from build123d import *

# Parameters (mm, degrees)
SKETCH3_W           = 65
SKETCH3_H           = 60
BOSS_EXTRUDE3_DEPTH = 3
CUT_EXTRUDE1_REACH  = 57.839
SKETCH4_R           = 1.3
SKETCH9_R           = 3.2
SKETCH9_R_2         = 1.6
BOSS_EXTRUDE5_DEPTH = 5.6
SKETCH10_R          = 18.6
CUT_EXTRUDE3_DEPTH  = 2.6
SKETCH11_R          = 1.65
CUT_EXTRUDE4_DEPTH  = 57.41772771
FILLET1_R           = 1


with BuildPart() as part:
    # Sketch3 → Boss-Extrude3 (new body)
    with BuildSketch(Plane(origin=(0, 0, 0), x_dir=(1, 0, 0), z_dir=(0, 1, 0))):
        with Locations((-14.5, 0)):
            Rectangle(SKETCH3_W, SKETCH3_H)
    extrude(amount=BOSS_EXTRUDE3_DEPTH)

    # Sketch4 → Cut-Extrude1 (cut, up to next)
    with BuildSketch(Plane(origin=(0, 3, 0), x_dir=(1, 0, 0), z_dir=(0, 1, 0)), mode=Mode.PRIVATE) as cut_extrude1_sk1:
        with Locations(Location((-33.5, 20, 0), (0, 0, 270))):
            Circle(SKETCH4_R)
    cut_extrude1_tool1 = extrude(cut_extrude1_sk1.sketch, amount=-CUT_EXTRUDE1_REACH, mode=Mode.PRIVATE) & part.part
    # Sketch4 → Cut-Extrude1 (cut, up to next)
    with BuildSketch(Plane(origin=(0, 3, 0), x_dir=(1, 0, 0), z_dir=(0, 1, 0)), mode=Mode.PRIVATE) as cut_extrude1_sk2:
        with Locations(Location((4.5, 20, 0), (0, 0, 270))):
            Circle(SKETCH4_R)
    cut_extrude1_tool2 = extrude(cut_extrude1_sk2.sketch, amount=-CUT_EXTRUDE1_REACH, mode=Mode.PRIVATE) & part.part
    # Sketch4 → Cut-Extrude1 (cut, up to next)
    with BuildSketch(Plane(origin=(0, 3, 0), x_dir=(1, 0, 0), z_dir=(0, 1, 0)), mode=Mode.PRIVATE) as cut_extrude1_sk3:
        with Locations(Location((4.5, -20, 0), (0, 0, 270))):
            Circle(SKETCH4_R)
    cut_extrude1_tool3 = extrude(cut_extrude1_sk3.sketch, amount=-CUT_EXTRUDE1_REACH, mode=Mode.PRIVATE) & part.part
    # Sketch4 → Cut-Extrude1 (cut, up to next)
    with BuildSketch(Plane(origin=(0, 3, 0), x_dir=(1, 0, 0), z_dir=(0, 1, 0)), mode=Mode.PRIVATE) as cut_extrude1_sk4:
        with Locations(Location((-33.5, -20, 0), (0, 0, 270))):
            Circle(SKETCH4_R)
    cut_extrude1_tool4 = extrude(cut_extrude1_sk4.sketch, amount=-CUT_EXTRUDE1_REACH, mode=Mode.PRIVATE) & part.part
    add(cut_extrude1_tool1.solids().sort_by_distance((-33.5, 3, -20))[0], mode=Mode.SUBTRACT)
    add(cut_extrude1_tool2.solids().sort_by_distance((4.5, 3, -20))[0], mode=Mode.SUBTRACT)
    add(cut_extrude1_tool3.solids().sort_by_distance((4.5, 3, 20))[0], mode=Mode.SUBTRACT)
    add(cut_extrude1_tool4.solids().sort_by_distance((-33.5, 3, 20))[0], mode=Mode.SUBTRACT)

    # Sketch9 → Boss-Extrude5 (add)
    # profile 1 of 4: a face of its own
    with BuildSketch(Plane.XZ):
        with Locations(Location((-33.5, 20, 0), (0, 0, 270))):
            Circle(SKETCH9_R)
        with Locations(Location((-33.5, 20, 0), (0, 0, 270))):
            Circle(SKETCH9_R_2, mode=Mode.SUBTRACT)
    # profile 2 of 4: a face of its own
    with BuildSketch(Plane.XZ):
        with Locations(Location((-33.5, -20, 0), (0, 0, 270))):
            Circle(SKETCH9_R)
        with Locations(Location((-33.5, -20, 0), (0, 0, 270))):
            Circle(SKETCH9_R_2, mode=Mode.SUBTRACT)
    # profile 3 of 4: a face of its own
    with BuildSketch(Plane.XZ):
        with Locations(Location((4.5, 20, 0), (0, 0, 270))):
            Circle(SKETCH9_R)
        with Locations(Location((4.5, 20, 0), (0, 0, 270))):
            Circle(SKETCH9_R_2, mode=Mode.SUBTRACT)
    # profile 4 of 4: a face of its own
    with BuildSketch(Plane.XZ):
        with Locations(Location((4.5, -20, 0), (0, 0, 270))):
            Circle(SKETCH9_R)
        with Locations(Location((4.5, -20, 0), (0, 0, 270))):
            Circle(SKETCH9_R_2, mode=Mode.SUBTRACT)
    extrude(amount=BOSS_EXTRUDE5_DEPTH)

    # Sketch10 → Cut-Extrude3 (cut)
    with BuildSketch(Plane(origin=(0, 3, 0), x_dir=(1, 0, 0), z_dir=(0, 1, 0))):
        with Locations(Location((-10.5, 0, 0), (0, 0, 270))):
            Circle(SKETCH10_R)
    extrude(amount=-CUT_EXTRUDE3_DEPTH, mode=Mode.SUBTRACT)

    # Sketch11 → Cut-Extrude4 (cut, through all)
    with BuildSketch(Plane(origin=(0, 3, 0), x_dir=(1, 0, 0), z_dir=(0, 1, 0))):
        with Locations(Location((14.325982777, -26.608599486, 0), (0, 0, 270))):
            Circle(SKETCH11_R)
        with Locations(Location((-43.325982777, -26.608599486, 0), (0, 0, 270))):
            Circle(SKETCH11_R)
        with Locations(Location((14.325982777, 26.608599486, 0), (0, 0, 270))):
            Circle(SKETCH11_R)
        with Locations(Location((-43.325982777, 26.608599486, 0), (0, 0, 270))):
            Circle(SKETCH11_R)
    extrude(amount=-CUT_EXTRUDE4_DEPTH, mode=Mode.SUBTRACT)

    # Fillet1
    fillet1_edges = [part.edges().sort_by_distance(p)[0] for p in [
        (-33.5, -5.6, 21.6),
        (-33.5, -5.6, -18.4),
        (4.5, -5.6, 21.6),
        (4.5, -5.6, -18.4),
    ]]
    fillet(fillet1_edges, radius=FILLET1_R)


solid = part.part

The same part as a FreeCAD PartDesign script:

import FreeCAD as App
import Part
import Sketcher
from FreeCAD import Vector
Q = App.Units.Quantity


def edges_at(feature, points):
    """Names of the edges that pass closest to the given points."""
    edges = feature.Shape.Edges
    near = lambda p: min(range(len(edges)), key=lambda i: edges[i].distToShape(Part.Vertex(*p))[0])
    return sorted({f"Edge{near(p) + 1}" for p in points})

doc = App.newDocument("Part")
body = doc.addObject("PartDesign::Body", "Body")

sketch1 = body.newObject("Sketcher::SketchObject", "Sketch")
sketch1.AttachmentSupport = (doc.getObject("XZ_Plane"), [""])
sketch1.MapMode = "FlatFace"
sketch1.addGeometry(Part.LineSegment(Vector(-47, -30, 0), Vector(-47, 30, 0)), False)
sketch1.addGeometry(Part.LineSegment(Vector(-47, 30, 0), Vector(18, 30, 0)), False)
sketch1.addGeometry(Part.LineSegment(Vector(18, 30, 0), Vector(18, -30, 0)), False)
sketch1.addGeometry(Part.LineSegment(Vector(18, -30, 0), Vector(-47, -30, 0)), False)
sketch1.addConstraint(Sketcher.Constraint("Coincident", 0, 2, 1, 1))
sketch1.addConstraint(Sketcher.Constraint("Coincident", 1, 2, 2, 1))
sketch1.addConstraint(Sketcher.Constraint("Coincident", 2, 2, 3, 1))
sketch1.addConstraint(Sketcher.Constraint("Coincident", 3, 2, 0, 1))
sketch1.addConstraint(Sketcher.Constraint("Vertical", 0))
sketch1.addConstraint(Sketcher.Constraint("Horizontal", 1))
sketch1.addConstraint(Sketcher.Constraint("Vertical", 2))
sketch1.addConstraint(Sketcher.Constraint("Horizontal", 3))
sketch1.addConstraint(Sketcher.Constraint("DistanceX", 1, 1, 1, 2, Q("65 mm")))
sketch1.addConstraint(Sketcher.Constraint("DistanceY", 0, 1, 0, 2, Q("60 mm")))
sketch1.addConstraint(Sketcher.Constraint("DistanceX", 0, 2, -1, 1, Q("47 mm")))
sketch1.addConstraint(Sketcher.Constraint("DistanceY", -1, 1, 0, 2, Q("30 mm")))
pad1 = body.newObject("PartDesign::Pad", "Pad")
pad1.Profile = sketch1
pad1.Length = 3
pad1.Reversed = True

sketch2 = body.newObject("Sketcher::SketchObject", "Sketch001")
sketch2.AttachmentSupport = (doc.getObject("XZ_Plane"), [""])
sketch2.MapMode = "FlatFace"
sketch2.AttachmentOffset = App.Placement(Vector(0, 0, -3), App.Rotation())
sketch2.addGeometry(Part.Circle(Vector(-33.5, -20, 0), Vector(0, 0, 1), 1.3), False)
sketch2.addConstraint(Sketcher.Constraint("Diameter", 0, Q("2.6 mm")))
sketch2.addConstraint(Sketcher.Constraint("DistanceY", 0, 3, -1, 1, Q("20 mm")))
sketch2.addConstraint(Sketcher.Constraint("DistanceX", 0, 3, -1, 1, Q("33.5 mm")))
pocket1 = body.newObject("PartDesign::Pocket", "Pocket")
pocket1.Profile = sketch2
pocket1.Type = "UpToFirst"
pocket1.Reversed = True

sketch3 = body.newObject("Sketcher::SketchObject", "Sketch002")
sketch3.AttachmentSupport = (doc.getObject("XZ_Plane"), [""])
sketch3.MapMode = "FlatFace"
sketch3.AttachmentOffset = App.Placement(Vector(0, 0, -3), App.Rotation())
sketch3.addGeometry(Part.Circle(Vector(4.5, -20, 0), Vector(0, 0, 1), 1.3), False)
sketch3.addConstraint(Sketcher.Constraint("Diameter", 0, Q("2.6 mm")))
sketch3.addConstraint(Sketcher.Constraint("DistanceY", 0, 3, -1, 1, Q("20 mm")))
sketch3.addConstraint(Sketcher.Constraint("DistanceX", -1, 1, 0, 3, Q("4.5 mm")))
pocket2 = body.newObject("PartDesign::Pocket", "Pocket001")
pocket2.Profile = sketch3
pocket2.Type = "UpToFirst"
pocket2.Reversed = True

sketch4 = body.newObject("Sketcher::SketchObject", "Sketch003")
sketch4.AttachmentSupport = (doc.getObject("XZ_Plane"), [""])
sketch4.MapMode = "FlatFace"
sketch4.AttachmentOffset = App.Placement(Vector(0, 0, -3), App.Rotation())
sketch4.addGeometry(Part.Circle(Vector(4.5, 20, 0), Vector(0, 0, 1), 1.3), False)
sketch4.addConstraint(Sketcher.Constraint("Diameter", 0, Q("2.6 mm")))
sketch4.addConstraint(Sketcher.Constraint("DistanceY", -1, 1, 0, 3, Q("20 mm")))
sketch4.addConstraint(Sketcher.Constraint("DistanceX", -1, 1, 0, 3, Q("4.5 mm")))
pocket3 = body.newObject("PartDesign::Pocket", "Pocket002")
pocket3.Profile = sketch4
pocket3.Type = "UpToFirst"
pocket3.Reversed = True

sketch5 = body.newObject("Sketcher::SketchObject", "Sketch004")
sketch5.AttachmentSupport = (doc.getObject("XZ_Plane"), [""])
sketch5.MapMode = "FlatFace"
sketch5.AttachmentOffset = App.Placement(Vector(0, 0, -3), App.Rotation())
sketch5.addGeometry(Part.Circle(Vector(-33.5, 20, 0), Vector(0, 0, 1), 1.3), False)
sketch5.addConstraint(Sketcher.Constraint("Diameter", 0, Q("2.6 mm")))
sketch5.addConstraint(Sketcher.Constraint("DistanceY", -1, 1, 0, 3, Q("20 mm")))
sketch5.addConstraint(Sketcher.Constraint("DistanceX", 0, 3, -1, 1, Q("33.5 mm")))
pocket4 = body.newObject("PartDesign::Pocket", "Pocket003")
pocket4.Profile = sketch5
pocket4.Type = "UpToFirst"
pocket4.Reversed = True

sketch6 = body.newObject("Sketcher::SketchObject", "Sketch005")
sketch6.AttachmentSupport = (doc.getObject("XZ_Plane"), [""])
sketch6.MapMode = "FlatFace"
sketch6.addGeometry(Part.Circle(Vector(-33.5, 20, 0), Vector(0, 0, 1), 3.2), False)
sketch6.addGeometry(Part.Circle(Vector(-33.5, 20, 0), Vector(0, 0, 1), 1.6), False)
sketch6.addGeometry(Part.Circle(Vector(-33.5, -20, 0), Vector(0, 0, 1), 3.2), False)
sketch6.addGeometry(Part.Circle(Vector(-33.5, -20, 0), Vector(0, 0, 1), 1.6), False)
sketch6.addGeometry(Part.Circle(Vector(4.5, 20, 0), Vector(0, 0, 1), 3.2), False)
sketch6.addGeometry(Part.Circle(Vector(4.5, 20, 0), Vector(0, 0, 1), 1.6), False)
sketch6.addGeometry(Part.Circle(Vector(4.5, -20, 0), Vector(0, 0, 1), 3.2), False)
sketch6.addGeometry(Part.Circle(Vector(4.5, -20, 0), Vector(0, 0, 1), 1.6), False)
sketch6.addConstraint(Sketcher.Constraint("Coincident", 1, 3, 0, 3))
sketch6.addConstraint(Sketcher.Constraint("Coincident", 3, 3, 2, 3))
sketch6.addConstraint(Sketcher.Constraint("Coincident", 5, 3, 4, 3))
sketch6.addConstraint(Sketcher.Constraint("Coincident", 7, 3, 6, 3))
sketch6.addConstraint(Sketcher.Constraint("Equal", 0, 2))
sketch6.addConstraint(Sketcher.Constraint("Equal", 1, 3))
sketch6.addConstraint(Sketcher.Constraint("Equal", 2, 4))
sketch6.addConstraint(Sketcher.Constraint("Equal", 3, 5))
sketch6.addConstraint(Sketcher.Constraint("Equal", 4, 6))
sketch6.addConstraint(Sketcher.Constraint("Equal", 5, 7))
sketch6.addConstraint(Sketcher.Constraint("Symmetric", 0, 3, 2, 3, -1))
sketch6.addConstraint(Sketcher.Constraint("Symmetric", 4, 3, 6, 3, -1))
sketch6.addConstraint(Sketcher.Constraint("Horizontal", 1, 3, 4, 3))
sketch6.addConstraint(Sketcher.Constraint("Diameter", 0, Q("6.4 mm")))
sketch6.addConstraint(Sketcher.Constraint("Diameter", 1, Q("3.2 mm")))
sketch6.addConstraint(Sketcher.Constraint("DistanceY", -1, 1, 0, 3, Q("20 mm")))
sketch6.addConstraint(Sketcher.Constraint("DistanceX", 0, 3, 4, 3, Q("38 mm")))
sketch6.addConstraint(Sketcher.Constraint("DistanceX", 0, 3, -1, 1, Q("33.5 mm")))
pad2 = body.newObject("PartDesign::Pad", "Pad001")
pad2.Profile = sketch6
pad2.Length = 5.6

sketch7 = body.newObject("Sketcher::SketchObject", "Sketch006")
sketch7.AttachmentSupport = (doc.getObject("XZ_Plane"), [""])
sketch7.MapMode = "FlatFace"
sketch7.AttachmentOffset = App.Placement(Vector(0, 0, -3), App.Rotation())
sketch7.addGeometry(Part.Circle(Vector(-10, 0, 0), Vector(0, 0, 1), 19), False)
sketch7.addConstraint(Sketcher.Constraint("PointOnObject", 0, 3, -1))
sketch7.addConstraint(Sketcher.Constraint("Diameter", 0, Q("37.2 mm")))
sketch7.addConstraint(Sketcher.Constraint("DistanceX", 0, 3, -1, 1, Q("10.5 mm")))
pocket5 = body.newObject("PartDesign::Pocket", "Pocket004")
pocket5.Profile = sketch7
pocket5.Length = 2.6
pocket5.Reversed = True

sketch8 = body.newObject("Sketcher::SketchObject", "Sketch007")
sketch8.AttachmentSupport = (doc.getObject("XZ_Plane"), [""])
sketch8.MapMode = "FlatFace"
sketch8.AttachmentOffset = App.Placement(Vector(0, 0, -3), App.Rotation())
sketch8.addGeometry(Part.Circle(Vector(14.3, 26.6, 0), Vector(0, 0, 1), 1.6), False)
sketch8.addGeometry(Part.Circle(Vector(-43.3, 26.6, 0), Vector(0, 0, 1), 1.6), False)
sketch8.addGeometry(Part.Circle(Vector(14.3, -26.6, 0), Vector(0, 0, 1), 1.6), False)
sketch8.addGeometry(Part.Circle(Vector(-43.3, -26.6, 0), Vector(0, 0, 1), 1.6), False)
sketch8.addConstraint(Sketcher.Constraint("Equal", 0, 1))
sketch8.addConstraint(Sketcher.Constraint("Equal", 1, 2))
sketch8.addConstraint(Sketcher.Constraint("Equal", 2, 3))
sketch8.addConstraint(Sketcher.Constraint("Symmetric", 0, 3, 2, 3, -1))
sketch8.addConstraint(Sketcher.Constraint("Symmetric", 1, 3, 3, 3, -1))
sketch8.addConstraint(Sketcher.Constraint("Horizontal", 0, 3, 1, 3))
sketch8.addConstraint(Sketcher.Constraint("Diameter", 0, Q("3.3 mm")))
sketch8.addConstraint(Sketcher.Constraint("DistanceY", -1, 1, 0, 3, Q("26.608599 mm")))
sketch8.addConstraint(Sketcher.Constraint("DistanceX", -1, 1, 0, 3, Q("14.325983 mm")))
sketch8.addConstraint(Sketcher.Constraint("DistanceX", 1, 3, -1, 1, Q("43.325983 mm")))
pocket6 = body.newObject("PartDesign::Pocket", "Pocket005")
pocket6.Profile = sketch8
pocket6.Type = "ThroughAll"
pocket6.Reversed = True
doc.recompute()

fillet = body.newObject("PartDesign::Fillet", "Fillet")
fillet.Base = (pocket6, edges_at(pocket6, [
    (-33.5, -5.6, 21.6),
    (-33.5, -5.6, -18.4),
    (4.5, -5.6, 21.6),
    (4.5, -5.6, -18.4),
]))
fillet.Radius = 1

doc.recompute()
